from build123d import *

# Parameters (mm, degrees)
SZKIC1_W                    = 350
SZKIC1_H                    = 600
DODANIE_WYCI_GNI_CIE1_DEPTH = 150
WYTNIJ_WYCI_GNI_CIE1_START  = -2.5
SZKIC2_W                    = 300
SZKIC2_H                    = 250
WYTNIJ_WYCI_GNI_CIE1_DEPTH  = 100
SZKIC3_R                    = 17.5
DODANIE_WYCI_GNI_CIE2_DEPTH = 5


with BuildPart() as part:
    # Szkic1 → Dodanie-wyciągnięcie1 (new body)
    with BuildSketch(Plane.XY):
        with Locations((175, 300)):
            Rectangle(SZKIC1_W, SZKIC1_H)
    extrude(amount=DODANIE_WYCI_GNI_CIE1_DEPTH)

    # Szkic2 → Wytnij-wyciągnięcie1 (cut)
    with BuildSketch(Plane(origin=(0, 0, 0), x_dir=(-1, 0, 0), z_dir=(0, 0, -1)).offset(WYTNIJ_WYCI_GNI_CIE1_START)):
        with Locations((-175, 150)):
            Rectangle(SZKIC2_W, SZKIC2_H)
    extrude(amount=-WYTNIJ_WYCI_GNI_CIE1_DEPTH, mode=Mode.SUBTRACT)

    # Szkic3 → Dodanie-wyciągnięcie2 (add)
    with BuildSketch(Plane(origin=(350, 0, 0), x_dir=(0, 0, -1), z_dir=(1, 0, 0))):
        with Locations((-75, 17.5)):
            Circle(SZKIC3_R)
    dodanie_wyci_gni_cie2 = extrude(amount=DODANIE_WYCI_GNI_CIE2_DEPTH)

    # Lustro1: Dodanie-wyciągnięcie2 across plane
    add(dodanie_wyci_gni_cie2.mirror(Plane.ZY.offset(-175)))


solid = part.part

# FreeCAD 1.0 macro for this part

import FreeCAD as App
import Part
import Sketcher
Q = App.Units.Quantity


def add_polygon(sketch, points):
    """Adds a closed chain of lines whose ends are joined by coincident constraints."""
    first, n = sketch.GeometryCount, len(points)
    for a, b in zip(points, points[1:] + points[:1]):
        sketch.addGeometry(Part.LineSegment(App.Vector(*a, 0), App.Vector(*b, 0)), False)
    for i in range(n):
        sketch.addConstraint(Sketcher.Constraint("Coincident", first + i, 2, first + (i + 1) % n, 1))

doc = App.newDocument("Part")
body = doc.addObject("PartDesign::Body", "Body")

# Sketch on XY plane
sketch1 = body.newObject("Sketcher::SketchObject", "Sketch")
sketch1.AttachmentSupport = (doc.getObject("XY_Plane"), [""])
sketch1.MapMode = "FlatFace"
add_polygon(sketch1, [(0, 600), (0, 0), (350, 0), (350, 600)])  # lines 0-3
sketch1.addConstraint(Sketcher.Constraint("Vertical", 0))
sketch1.addConstraint(Sketcher.Constraint("Horizontal", 1))
sketch1.addConstraint(Sketcher.Constraint("Vertical", 2))
sketch1.addConstraint(Sketcher.Constraint("Horizontal", 3))
sketch1.addConstraint(Sketcher.Constraint("Coincident", 0, 2, -1, 1))
sketch1.addConstraint(Sketcher.Constraint("DistanceX", 1, 1, 1, 2, Q("350 mm")))
sketch1.addConstraint(Sketcher.Constraint("DistanceY", 0, 2, 0, 1, Q("600 mm")))
pad1 = body.newObject("PartDesign::Pad", "Pad")
pad1.Profile = sketch1
pad1.Length = 150

# Sketch on XY plane
sketch2 = body.newObject("Sketcher::SketchObject", "Sketch001")
sketch2.AttachmentSupport = (doc.getObject("XY_Plane"), [""])
sketch2.MapMode = "FlatFace"
sketch2.AttachmentOffset = App.Placement(App.Vector(0, 0, 2.5), App.Rotation())
add_polygon(sketch2, [(325, 275), (325, 25), (25, 25), (25, 275)])  # lines 0-3
sketch2.addConstraint(Sketcher.Constraint("Vertical", 0))
sketch2.addConstraint(Sketcher.Constraint("Horizontal", 1))
sketch2.addConstraint(Sketcher.Constraint("Vertical", 2))
sketch2.addConstraint(Sketcher.Constraint("Horizontal", 3))
sketch2.addConstraint(Sketcher.Constraint("DistanceX", 1, 2, 1, 1, Q("300 mm")))
sketch2.addConstraint(Sketcher.Constraint("DistanceY", 0, 2, 0, 1, Q("250 mm")))
sketch2.addConstraint(Sketcher.Constraint("DistanceX", -1, 1, 0, 2, Q("325 mm")))
sketch2.addConstraint(Sketcher.Constraint("DistanceY", -1, 1, 0, 2, Q("25 mm")))
pocket1 = body.newObject("PartDesign::Pocket", "Pocket")
pocket1.Profile = sketch2
pocket1.Length = 100
pocket1.Reversed = True

# Sketch on YZ plane
sketch3 = body.newObject("Sketcher::SketchObject", "Sketch002")
sketch3.AttachmentSupport = (doc.getObject("YZ_Plane"), [""])
sketch3.MapMode = "FlatFace"
sketch3.AttachmentOffset = App.Placement(App.Vector(0, 0, 350), App.Rotation())
sketch3.addGeometry(Part.Circle(App.Vector(18, 75, 0), App.Vector(0, 0, 1), 18), False)
sketch3.addConstraint(Sketcher.Constraint("Diameter", 0, Q("35 mm")))
sketch3.addConstraint(Sketcher.Constraint("DistanceY", -1, 1, 0, 3, Q("75 mm")))
sketch3.addConstraint(Sketcher.Constraint("DistanceX", -1, 1, 0, 3, Q("17.5 mm")))
pad2 = body.newObject("PartDesign::Pad", "Pad001")
pad2.Profile = sketch3
pad2.Length = 5
doc.recompute()

datumplane = body.newObject("PartDesign::Plane", "DatumPlane")
datumplane.AttachmentSupport = (doc.getObject("YZ_Plane"), [""])
datumplane.MapMode = "FlatFace"
datumplane.AttachmentOffset = App.Placement(App.Vector(0, 0, 175), App.Rotation())
mirrored = body.newObject("PartDesign::Mirrored", "Mirrored")
mirrored.Originals = [pad2]
mirrored.MirrorPlane = (datumplane, [""])
body.Tip = mirrored

doc.recompute()
